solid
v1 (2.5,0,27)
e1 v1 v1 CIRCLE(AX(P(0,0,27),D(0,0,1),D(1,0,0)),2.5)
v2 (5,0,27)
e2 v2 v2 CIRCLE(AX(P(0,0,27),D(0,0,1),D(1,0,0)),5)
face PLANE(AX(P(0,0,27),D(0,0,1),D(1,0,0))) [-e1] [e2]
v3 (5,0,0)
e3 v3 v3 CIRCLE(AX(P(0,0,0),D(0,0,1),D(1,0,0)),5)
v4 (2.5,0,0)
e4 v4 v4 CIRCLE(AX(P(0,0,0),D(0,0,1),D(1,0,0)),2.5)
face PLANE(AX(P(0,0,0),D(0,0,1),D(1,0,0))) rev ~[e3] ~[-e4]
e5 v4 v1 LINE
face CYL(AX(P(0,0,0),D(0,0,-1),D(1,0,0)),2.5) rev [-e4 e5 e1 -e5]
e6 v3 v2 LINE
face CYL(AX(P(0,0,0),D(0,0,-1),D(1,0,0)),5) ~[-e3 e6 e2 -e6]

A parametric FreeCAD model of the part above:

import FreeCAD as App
import Part
import Sketcher
Q = App.Units.Quantity

doc = App.newDocument("Part")
body = doc.addObject("PartDesign::Body", "Body")

# Sketch on XY plane
sketch1 = body.newObject("Sketcher::SketchObject", "Sketch")
sketch1.AttachmentSupport = (doc.getObject("XY_Plane"), [""])
sketch1.MapMode = "FlatFace"
sketch1.addGeometry(Part.Circle(App.Vector(0, 0, 0), App.Vector(0, 0, 1), 5), False)
sketch1.addGeometry(Part.Circle(App.Vector(0, 0, 0), App.Vector(0, 0, 1), 2.5), False)
sketch1.addConstraint(Sketcher.Constraint("Coincident", 0, 3, -1, 1))
sketch1.addConstraint(Sketcher.Constraint("Coincident", 1, 3, -1, 1))
sketch1.addConstraint(Sketcher.Constraint("Diameter", 0, Q("10 mm")))
sketch1.addConstraint(Sketcher.Constraint("Diameter", 1, Q("5 mm")))
pad1 = body.newObject("PartDesign::Pad", "Pad")
pad1.Profile = sketch1
pad1.Length = 27

doc.recompute()
